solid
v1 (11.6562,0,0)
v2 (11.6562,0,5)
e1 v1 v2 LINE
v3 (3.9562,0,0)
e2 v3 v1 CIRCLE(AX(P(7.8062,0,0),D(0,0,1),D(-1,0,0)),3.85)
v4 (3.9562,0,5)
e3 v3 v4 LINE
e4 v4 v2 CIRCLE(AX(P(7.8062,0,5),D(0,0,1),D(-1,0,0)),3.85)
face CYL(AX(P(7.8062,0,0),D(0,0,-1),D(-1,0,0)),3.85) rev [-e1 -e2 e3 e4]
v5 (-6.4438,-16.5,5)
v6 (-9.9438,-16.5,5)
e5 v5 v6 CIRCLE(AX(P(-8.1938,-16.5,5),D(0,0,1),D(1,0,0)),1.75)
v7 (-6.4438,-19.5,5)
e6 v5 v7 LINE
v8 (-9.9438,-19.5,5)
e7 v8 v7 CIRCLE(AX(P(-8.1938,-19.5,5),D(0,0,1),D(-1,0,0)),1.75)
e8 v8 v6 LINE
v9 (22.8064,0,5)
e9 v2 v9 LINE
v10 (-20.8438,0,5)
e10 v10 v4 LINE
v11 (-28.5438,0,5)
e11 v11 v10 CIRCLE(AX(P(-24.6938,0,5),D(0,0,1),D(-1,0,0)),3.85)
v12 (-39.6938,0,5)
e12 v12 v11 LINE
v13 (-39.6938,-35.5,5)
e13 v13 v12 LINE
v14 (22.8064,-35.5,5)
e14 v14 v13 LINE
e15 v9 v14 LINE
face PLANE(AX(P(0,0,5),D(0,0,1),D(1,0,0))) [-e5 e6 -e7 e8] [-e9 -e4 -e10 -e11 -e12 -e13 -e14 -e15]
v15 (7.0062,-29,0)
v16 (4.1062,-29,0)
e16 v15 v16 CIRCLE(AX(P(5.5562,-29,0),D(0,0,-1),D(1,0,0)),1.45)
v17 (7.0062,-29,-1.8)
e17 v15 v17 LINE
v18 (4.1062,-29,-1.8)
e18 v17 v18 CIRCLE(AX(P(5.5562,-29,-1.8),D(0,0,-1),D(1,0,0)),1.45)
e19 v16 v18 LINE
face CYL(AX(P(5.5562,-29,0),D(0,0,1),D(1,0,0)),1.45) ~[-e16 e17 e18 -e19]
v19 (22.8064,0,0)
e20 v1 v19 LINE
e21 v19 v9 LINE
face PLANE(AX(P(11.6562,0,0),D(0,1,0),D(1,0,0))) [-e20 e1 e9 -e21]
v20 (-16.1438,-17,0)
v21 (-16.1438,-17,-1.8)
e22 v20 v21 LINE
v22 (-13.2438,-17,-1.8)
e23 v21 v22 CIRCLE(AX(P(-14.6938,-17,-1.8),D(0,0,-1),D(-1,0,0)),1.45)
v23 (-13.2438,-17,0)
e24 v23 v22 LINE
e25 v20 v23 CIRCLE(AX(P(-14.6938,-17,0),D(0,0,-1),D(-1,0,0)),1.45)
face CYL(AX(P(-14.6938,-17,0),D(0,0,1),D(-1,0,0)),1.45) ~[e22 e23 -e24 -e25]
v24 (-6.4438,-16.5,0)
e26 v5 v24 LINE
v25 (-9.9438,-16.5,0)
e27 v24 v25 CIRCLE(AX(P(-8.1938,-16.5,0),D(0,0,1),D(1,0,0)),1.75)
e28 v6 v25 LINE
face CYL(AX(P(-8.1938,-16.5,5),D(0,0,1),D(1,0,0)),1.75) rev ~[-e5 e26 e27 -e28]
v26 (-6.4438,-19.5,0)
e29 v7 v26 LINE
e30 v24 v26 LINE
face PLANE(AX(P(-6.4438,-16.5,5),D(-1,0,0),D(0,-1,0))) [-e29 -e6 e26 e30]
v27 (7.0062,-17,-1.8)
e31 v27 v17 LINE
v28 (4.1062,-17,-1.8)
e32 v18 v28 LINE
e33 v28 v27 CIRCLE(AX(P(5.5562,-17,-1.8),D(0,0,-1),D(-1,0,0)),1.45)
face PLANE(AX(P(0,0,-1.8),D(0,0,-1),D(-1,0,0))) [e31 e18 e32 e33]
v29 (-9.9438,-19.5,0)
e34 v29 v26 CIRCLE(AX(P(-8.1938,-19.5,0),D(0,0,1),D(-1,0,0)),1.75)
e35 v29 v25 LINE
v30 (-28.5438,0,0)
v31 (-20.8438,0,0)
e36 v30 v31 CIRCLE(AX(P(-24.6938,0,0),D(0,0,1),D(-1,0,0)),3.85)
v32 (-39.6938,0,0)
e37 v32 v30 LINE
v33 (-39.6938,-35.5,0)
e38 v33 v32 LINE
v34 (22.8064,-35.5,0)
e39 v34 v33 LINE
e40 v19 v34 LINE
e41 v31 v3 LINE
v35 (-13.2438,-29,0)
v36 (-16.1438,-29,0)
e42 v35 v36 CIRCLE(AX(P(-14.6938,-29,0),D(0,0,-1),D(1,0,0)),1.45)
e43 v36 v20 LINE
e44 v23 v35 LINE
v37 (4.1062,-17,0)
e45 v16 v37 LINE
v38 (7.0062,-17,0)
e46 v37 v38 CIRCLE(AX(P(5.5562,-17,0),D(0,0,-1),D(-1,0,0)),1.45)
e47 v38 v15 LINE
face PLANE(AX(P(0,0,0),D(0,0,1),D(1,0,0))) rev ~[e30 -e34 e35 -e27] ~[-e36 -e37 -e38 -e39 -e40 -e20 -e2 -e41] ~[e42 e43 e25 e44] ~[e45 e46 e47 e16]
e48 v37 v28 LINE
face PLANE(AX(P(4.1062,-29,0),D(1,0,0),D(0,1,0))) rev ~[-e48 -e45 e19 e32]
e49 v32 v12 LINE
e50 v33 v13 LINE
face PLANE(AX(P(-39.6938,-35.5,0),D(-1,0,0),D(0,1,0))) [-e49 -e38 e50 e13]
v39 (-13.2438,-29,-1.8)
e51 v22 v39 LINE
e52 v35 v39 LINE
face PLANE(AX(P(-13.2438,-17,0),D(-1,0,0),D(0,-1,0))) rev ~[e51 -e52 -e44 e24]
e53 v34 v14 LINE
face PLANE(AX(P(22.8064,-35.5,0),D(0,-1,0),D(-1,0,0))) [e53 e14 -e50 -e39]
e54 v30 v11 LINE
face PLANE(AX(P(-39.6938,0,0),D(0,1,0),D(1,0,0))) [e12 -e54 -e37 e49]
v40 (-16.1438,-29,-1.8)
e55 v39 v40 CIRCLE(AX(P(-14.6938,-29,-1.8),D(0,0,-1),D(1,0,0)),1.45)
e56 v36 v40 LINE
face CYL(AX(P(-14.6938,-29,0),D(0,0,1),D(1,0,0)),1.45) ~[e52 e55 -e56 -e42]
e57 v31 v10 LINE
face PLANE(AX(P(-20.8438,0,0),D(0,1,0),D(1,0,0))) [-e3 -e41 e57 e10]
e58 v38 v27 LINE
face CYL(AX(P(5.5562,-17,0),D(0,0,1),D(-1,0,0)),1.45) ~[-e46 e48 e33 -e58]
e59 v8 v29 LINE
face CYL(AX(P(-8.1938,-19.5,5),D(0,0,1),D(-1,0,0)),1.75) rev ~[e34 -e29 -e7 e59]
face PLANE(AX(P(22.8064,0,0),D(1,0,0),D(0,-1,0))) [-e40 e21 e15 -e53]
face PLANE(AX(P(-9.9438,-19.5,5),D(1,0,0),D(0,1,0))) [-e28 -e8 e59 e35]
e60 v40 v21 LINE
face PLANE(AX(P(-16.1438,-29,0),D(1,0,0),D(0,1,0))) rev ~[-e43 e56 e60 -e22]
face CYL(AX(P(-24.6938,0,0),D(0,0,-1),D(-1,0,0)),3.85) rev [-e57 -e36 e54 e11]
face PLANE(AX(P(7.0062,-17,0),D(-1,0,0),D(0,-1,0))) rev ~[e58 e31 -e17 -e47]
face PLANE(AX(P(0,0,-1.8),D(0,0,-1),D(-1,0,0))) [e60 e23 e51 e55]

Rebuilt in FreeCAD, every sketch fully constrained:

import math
import FreeCAD as App
import Part
import Sketcher
from FreeCAD import Vector

doc = App.newDocument("Part")
body = doc.addObject("PartDesign::Body", "Body")

sketch1 = body.newObject("Sketcher::SketchObject", "Sketch")
sketch1.AttachmentSupport = (doc.getObject("XY_Plane"), [""])
sketch1.MapMode = "FlatFace"
sketch1.addGeometry(Part.LineSegment(Vector(-39.7, -35.5, 0), Vector(22.8, -35.5, 0)), False)
sketch1.addGeometry(Part.LineSegment(Vector(22.8, -35.5, 0), Vector(22.8, 0, 0)), False)
sketch1.addGeometry(Part.LineSegment(Vector(22.8, 0, 0), Vector(11.7, 0, 0)), False)
sketch1.addGeometry(Part.ArcOfCircle(Part.Circle(Vector(7.8, 0, 0), Vector(0, 0, 1), 3.8), math.radians(180), math.radians(360)), False)
sketch1.addGeometry(Part.LineSegment(Vector(4, 0, 0), Vector(-20.8, 0, 0)), False)
sketch1.addGeometry(Part.ArcOfCircle(Part.Circle(Vector(-24.7, 0, 0), Vector(0, 0, 1), 3.9), math.radians(180), math.radians(360)), False)
sketch1.addGeometry(Part.LineSegment(Vector(-28.5, 0, 0), Vector(-39.7, 0, 0)), False)
sketch1.addGeometry(Part.LineSegment(Vector(-39.7, 0, 0), Vector(-39.7, -35.5, 0)), False)
sketch1.addConstraint(Sketcher.Constraint("Coincident", 0, 2, 1, 1))
sketch1.addConstraint(Sketcher.Constraint("Coincident", 1, 2, 2, 1))
sketch1.addConstraint(Sketcher.Constraint("Coincident", 2, 2, 3, 2))
sketch1.addConstraint(Sketcher.Constraint("Coincident", 3, 1, 4, 1))
sketch1.addConstraint(Sketcher.Constraint("Coincident", 4, 2, 5, 2))
sketch1.addConstraint(Sketcher.Constraint("Coincident", 5, 1, 6, 1))
sketch1.addConstraint(Sketcher.Constraint("Coincident", 6, 2, 7, 1))
sketch1.addConstraint(Sketcher.Constraint("Coincident", 7, 2, 0, 1))
sketch1.addConstraint(Sketcher.Constraint("Horizontal", 0))
sketch1.addConstraint(Sketcher.Constraint("Vertical", 1))
sketch1.addConstraint(Sketcher.Constraint("Horizontal", 2))
sketch1.addConstraint(Sketcher.Constraint("Horizontal", 4))
sketch1.addConstraint(Sketcher.Constraint("Horizontal", 6))
sketch1.addConstraint(Sketcher.Constraint("Vertical", 7))
sketch1.addConstraint(Sketcher.Constraint("Equal", 3, 5))
sketch1.addConstraint(Sketcher.Constraint("PointOnObject", 3, 3, -1))
sketch1.addConstraint(Sketcher.Constraint("PointOnObject", 5, 3, -1))
sketch1.addConstraint(Sketcher.Constraint("PointOnObject", 1, 2, -1))
sketch1.addConstraint(Sketcher.Constraint("PointOnObject", 3, 1, -1))
sketch1.addConstraint(Sketcher.Constraint("PointOnObject", 5, 1, -1))
sketch1.addConstraint(Sketcher.Constraint("Equal", 2, 6))
sketch1.addConstraint(Sketcher.Constraint("Radius", 3, 3.85))
sketch1.addConstraint(Sketcher.Constraint("DistanceX", 4, 2, 4, 1, 24.8))
sketch1.addConstraint(Sketcher.Constraint("DistanceY", 1, 1, 1, 2, 35.5))
sketch1.addConstraint(Sketcher.Constraint("DistanceX", 6, 2, 5, 3, 15.0))
sketch1.addConstraint(Sketcher.Constraint("DistanceX", -1, 1, 3, 3, 7.8062))
pad1 = body.newObject("PartDesign::Pad", "Pad")
pad1.Profile = sketch1
pad1.Length = 5

sketch2 = body.newObject("Sketcher::SketchObject", "Sketch001")
sketch2.AttachmentSupport = (doc.getObject("XY_Plane"), [""])
sketch2.MapMode = "FlatFace"
sketch2.addGeometry(Part.ArcOfCircle(Part.Circle(Vector(5.6, -17, 0), Vector(0, 0, 1), 1.4), math.radians(0), math.radians(180)), False)
sketch2.addGeometry(Part.LineSegment(Vector(7, -17, 0), Vector(7, -29, 0)), False)
sketch2.addGeometry(Part.ArcOfCircle(Part.Circle(Vector(5.6, -29, 0), Vector(0, 0, 1), 1.5), math.radians(180), math.radians(360)), False)
sketch2.addGeometry(Part.LineSegment(Vector(4.1, -29, 0), Vector(4.1, -17, 0)), False)
sketch2.addGeometry(Part.ArcOfCircle(Part.Circle(Vector(-14.7, -17, 0), Vector(0, 0, 1), 1.4), math.radians(0), math.radians(180)), False)
sketch2.addGeometry(Part.LineSegment(Vector(-13.2, -17, 0), Vector(-13.2, -29, 0)), False)
sketch2.addGeometry(Part.ArcOfCircle(Part.Circle(Vector(-14.7, -29, 0), Vector(0, 0, 1), 1.4), math.radians(180), math.radians(360)), False)
sketch2.addGeometry(Part.LineSegment(Vector(-16.1, -29, 0), Vector(-16.1, -17, 0)), False)
sketch2.addConstraint(Sketcher.Constraint("Tangent", 0, 1, 1, 1))
sketch2.addConstraint(Sketcher.Constraint("Tangent", 1, 2, 2, 2))
sketch2.addConstraint(Sketcher.Constraint("Tangent", 2, 1, 3, 1))
sketch2.addConstraint(Sketcher.Constraint("Tangent", 3, 2, 0, 2))
sketch2.addConstraint(Sketcher.Constraint("Tangent", 4, 1, 5, 1))
sketch2.addConstraint(Sketcher.Constraint("Tangent", 5, 2, 6, 2))
sketch2.addConstraint(Sketcher.Constraint("Tangent", 6, 1, 7, 1))
sketch2.addConstraint(Sketcher.Constraint("Tangent", 7, 2, 4, 2))
sketch2.addConstraint(Sketcher.Constraint("Vertical", 1))
sketch2.addConstraint(Sketcher.Constraint("Vertical", 3))
sketch2.addConstraint(Sketcher.Constraint("Vertical", 5))
sketch2.addConstraint(Sketcher.Constraint("Vertical", 7))
sketch2.addConstraint(Sketcher.Constraint("Equal", 2, 4))
sketch2.addConstraint(Sketcher.Constraint("Horizontal", 0, 3, 4, 3))
sketch2.addConstraint(Sketcher.Constraint("Horizontal", 2, 3, 6, 3))
sketch2.addConstraint(Sketcher.Constraint("DistanceY", 1, 2, 1, 1, 12.0))
sketch2.addConstraint(Sketcher.Constraint("Radius", 0, 1.45))
sketch2.addConstraint(Sketcher.Constraint("DistanceY", 0, 3, -1, 1, 17.0))
sketch2.addConstraint(Sketcher.Constraint("DistanceX", 4, 3, 0, 1, 21.7))
sketch2.addConstraint(Sketcher.Constraint("DistanceX", -1, 1, 0, 3, 5.5562))
pad2 = body.newObject("PartDesign::Pad", "Pad001")
pad2.Profile = sketch2
pad2.Length = 1.8
pad2.Reversed = True

sketch3 = body.newObject("Sketcher::SketchObject", "Sketch002")
sketch3.AttachmentSupport = (doc.getObject("XY_Plane"), [""])
sketch3.MapMode = "FlatFace"
sketch3.AttachmentOffset = App.Placement(Vector(0, 0, 5), App.Rotation())
sketch3.addGeometry(Part.LineSegment(Vector(-6.4, -19.5, 0), Vector(-6.4, -16.5, 0)), False)
sketch3.addGeometry(Part.ArcOfCircle(Part.Circle(Vector(-8.2, -16.5, 0), Vector(0, 0, 1), 1.7), math.radians(0), math.radians(180)), False)
sketch3.addGeometry(Part.LineSegment(Vector(-9.9, -16.5, 0), Vector(-9.9, -19.5, 0)), False)
sketch3.addGeometry(Part.ArcOfCircle(Part.Circle(Vector(-8.2, -19.5, 0), Vector(0, 0, 1), 1.8), math.radians(180), math.radians(360)), False)
sketch3.addConstraint(Sketcher.Constraint("Tangent", 0, 2, 1, 1))
sketch3.addConstraint(Sketcher.Constraint("Tangent", 1, 2, 2, 1))
sketch3.addConstraint(Sketcher.Constraint("Tangent", 2, 2, 3, 1))
sketch3.addConstraint(Sketcher.Constraint("Tangent", 3, 2, 0, 1))
sketch3.addConstraint(Sketcher.Constraint("Vertical", 0))
sketch3.addConstraint(Sketcher.Constraint("Vertical", 2))
sketch3.addConstraint(Sketcher.Constraint("DistanceY", 0, 1, 0, 2, 3.0))
sketch3.addConstraint(Sketcher.Constraint("Radius", 1, 1.75))
sketch3.addConstraint(Sketcher.Constraint("DistanceY", 1, 3, -1, 1, 16.5))
sketch3.addConstraint(Sketcher.Constraint("DistanceX", 1, 3, -1, 1, 8.1938))
pocket1 = body.newObject("PartDesign::Pocket", "Pocket")
pocket1.Profile = sketch3
pocket1.Type = "ThroughAll"

doc.recompute()
